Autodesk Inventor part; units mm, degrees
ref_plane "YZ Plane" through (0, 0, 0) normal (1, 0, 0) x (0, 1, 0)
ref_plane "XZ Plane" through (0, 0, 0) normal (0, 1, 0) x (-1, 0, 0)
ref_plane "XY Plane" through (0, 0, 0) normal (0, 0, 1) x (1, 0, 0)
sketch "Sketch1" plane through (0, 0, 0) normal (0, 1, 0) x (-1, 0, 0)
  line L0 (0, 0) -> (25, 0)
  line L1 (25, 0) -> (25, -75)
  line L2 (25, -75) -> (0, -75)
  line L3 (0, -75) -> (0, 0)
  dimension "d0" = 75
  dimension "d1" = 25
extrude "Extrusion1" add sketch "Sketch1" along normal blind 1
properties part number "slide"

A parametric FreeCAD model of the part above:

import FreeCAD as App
import Part
import Sketcher
from FreeCAD import Vector


def add_polygon(sketch, points):
    """Adds a closed chain of lines whose ends are joined by coincident constraints."""
    first, n = sketch.GeometryCount, len(points)
    for a, b in zip(points, points[1:] + points[:1]):
        sketch.addGeometry(Part.LineSegment(App.Vector(*a, 0), App.Vector(*b, 0)), False)
    for i in range(n):
        sketch.addConstraint(Sketcher.Constraint("Coincident", first + i, 2, first + (i + 1) % n, 1))

doc = App.newDocument("Part")
body = doc.addObject("PartDesign::Body", "Body")

sketch1 = body.newObject("Sketcher::SketchObject", "Sketch")
sketch1.AttachmentSupport = (doc.getObject("XZ_Plane"), [""])
sketch1.MapMode = "FlatFace"
add_polygon(sketch1, [(-25, 0), (0, 0), (0, -75), (-25, -75)])
sketch1.addConstraint(Sketcher.Constraint("Horizontal", 0))
sketch1.addConstraint(Sketcher.Constraint("Vertical", 1))
sketch1.addConstraint(Sketcher.Constraint("Horizontal", 2))
sketch1.addConstraint(Sketcher.Constraint("Vertical", 3))
sketch1.addConstraint(Sketcher.Constraint("Coincident", 0, 2, -1, 1))
sketch1.addConstraint(Sketcher.Constraint("DistanceX", 0, 1, 0, 2, 25.0))
sketch1.addConstraint(Sketcher.Constraint("DistanceY", 1, 2, 1, 1, 75.0))
pad1 = body.newObject("PartDesign::Pad", "Pad")
pad1.Profile = sketch1
pad1.Length = 1
pad1.Reversed = True

doc.recompute()
